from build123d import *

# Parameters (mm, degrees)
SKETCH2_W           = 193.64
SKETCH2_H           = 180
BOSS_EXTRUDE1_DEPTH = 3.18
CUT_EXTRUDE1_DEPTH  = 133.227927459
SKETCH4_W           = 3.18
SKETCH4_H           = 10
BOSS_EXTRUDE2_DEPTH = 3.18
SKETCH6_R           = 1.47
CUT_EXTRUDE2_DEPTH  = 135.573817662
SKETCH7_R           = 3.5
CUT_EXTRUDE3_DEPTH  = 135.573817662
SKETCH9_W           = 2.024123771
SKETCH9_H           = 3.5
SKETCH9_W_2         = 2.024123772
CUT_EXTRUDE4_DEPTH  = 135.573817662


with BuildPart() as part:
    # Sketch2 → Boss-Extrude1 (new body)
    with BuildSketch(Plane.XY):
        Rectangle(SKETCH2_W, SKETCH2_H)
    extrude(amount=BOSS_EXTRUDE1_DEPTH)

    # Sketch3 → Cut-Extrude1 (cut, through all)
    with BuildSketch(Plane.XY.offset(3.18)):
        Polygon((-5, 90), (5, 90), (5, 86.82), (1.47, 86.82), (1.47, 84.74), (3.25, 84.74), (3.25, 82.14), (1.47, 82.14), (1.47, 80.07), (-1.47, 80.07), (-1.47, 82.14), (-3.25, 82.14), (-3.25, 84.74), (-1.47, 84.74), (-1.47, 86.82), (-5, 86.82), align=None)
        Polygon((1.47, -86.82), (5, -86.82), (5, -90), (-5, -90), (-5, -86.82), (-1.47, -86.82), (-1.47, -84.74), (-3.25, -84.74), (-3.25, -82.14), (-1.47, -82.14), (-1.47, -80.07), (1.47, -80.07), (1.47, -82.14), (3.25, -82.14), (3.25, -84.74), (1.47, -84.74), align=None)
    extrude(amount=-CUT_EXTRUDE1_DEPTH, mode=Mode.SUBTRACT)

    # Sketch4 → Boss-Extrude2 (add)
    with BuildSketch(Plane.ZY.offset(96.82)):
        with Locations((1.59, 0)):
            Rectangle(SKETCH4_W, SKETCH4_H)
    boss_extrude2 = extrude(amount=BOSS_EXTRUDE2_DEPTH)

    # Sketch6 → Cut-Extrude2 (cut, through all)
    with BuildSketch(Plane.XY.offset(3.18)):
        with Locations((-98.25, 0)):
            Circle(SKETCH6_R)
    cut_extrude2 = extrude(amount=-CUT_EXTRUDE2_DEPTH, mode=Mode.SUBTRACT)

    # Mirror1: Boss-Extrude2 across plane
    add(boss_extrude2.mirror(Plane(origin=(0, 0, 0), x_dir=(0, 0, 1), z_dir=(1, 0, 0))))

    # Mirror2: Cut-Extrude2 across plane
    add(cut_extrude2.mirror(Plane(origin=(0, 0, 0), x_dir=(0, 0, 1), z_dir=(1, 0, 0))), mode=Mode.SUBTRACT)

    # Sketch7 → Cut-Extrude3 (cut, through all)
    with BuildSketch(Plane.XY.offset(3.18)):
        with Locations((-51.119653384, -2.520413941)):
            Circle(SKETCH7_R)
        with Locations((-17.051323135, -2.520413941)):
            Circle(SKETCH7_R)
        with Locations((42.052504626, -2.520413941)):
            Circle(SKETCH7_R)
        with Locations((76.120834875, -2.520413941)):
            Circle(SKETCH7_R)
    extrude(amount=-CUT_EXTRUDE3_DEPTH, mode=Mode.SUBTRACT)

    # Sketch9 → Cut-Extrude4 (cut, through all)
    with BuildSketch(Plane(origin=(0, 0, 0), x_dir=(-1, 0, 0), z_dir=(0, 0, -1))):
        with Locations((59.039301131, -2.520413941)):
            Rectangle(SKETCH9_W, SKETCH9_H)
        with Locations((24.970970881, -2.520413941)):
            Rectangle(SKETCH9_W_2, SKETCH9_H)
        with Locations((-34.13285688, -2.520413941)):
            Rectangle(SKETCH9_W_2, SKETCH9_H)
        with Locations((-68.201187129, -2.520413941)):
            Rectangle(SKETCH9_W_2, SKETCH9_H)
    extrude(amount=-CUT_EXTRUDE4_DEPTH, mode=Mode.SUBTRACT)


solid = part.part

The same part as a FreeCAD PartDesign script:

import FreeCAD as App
import Part
import Sketcher
from FreeCAD import Vector

doc = App.newDocument("Part")
body = doc.addObject("PartDesign::Body", "Body")

sketch1 = body.newObject("Sketcher::SketchObject", "Sketch")
sketch1.AttachmentSupport = (doc.getObject("XY_Plane"), [""])
sketch1.MapMode = "FlatFace"
sketch1.addGeometry([
    Part.LineSegment(Vector(-96.82, 90, 0), Vector(-96.82, -90, 0)),
    Part.LineSegment(Vector(-96.82, -90, 0), Vector(96.82, -90, 0)),
    Part.LineSegment(Vector(96.82, -90, 0), Vector(96.82, 90, 0)),
    Part.LineSegment(Vector(96.82, 90, 0), Vector(-96.82, 90, 0)),
], False)
sketch1.addConstraint([
    Sketcher.Constraint("Coincident", 0, 2, 1, 1),
    Sketcher.Constraint("Coincident", 1, 2, 2, 1),
    Sketcher.Constraint("Coincident", 2, 2, 3, 1),
    Sketcher.Constraint("Coincident", 3, 2, 0, 1),
    Sketcher.Constraint("Vertical", 0),
    Sketcher.Constraint("Horizontal", 1),
    Sketcher.Constraint("Vertical", 2),
    Sketcher.Constraint("Horizontal", 3),
    Sketcher.Constraint("Symmetric", 0, 2, 2, 2, -1, 1),
    Sketcher.Constraint("DistanceY", 0, 2, 0, 1, 180.0),
    Sketcher.Constraint("DistanceX", 1, 1, 1, 2, 193.64),
])
pad1 = body.newObject("PartDesign::Pad", "Pad")
pad1.Profile = sketch1
pad1.Length = 3.18

sketch2 = body.newObject("Sketcher::SketchObject", "Sketch001")
sketch2.AttachmentSupport = (doc.getObject("XY_Plane"), [""])
sketch2.MapMode = "FlatFace"
sketch2.AttachmentOffset = App.Placement(Vector(0, 0, 3.18), App.Rotation())
sketch2.addGeometry([
    Part.LineSegment(Vector(5, 90, 0), Vector(-5, 90, 0)),
    Part.LineSegment(Vector(-5, 90, 0), Vector(-5, 86.82, 0)),
    Part.LineSegment(Vector(-5, 86.82, 0), Vector(-1.47, 86.82, 0)),
    Part.LineSegment(Vector(-1.47, 86.82, 0), Vector(-1.47, 84.74, 0)),
    Part.LineSegment(Vector(-1.47, 84.74, 0), Vector(-3.25, 84.74, 0)),
    Part.LineSegment(Vector(-3.25, 84.74, 0), Vector(-3.25, 82.14, 0)),
    Part.LineSegment(Vector(-3.25, 82.14, 0), Vector(-1.47, 82.14, 0)),
    Part.LineSegment(Vector(-1.47, 82.14, 0), Vector(-1.47, 80.07, 0)),
    Part.LineSegment(Vector(-1.47, 80.07, 0), Vector(1.47, 80.07, 0)),
    Part.LineSegment(Vector(1.47, 80.07, 0), Vector(1.47, 82.14, 0)),
    Part.LineSegment(Vector(1.47, 82.14, 0), Vector(3.25, 82.14, 0)),
    Part.LineSegment(Vector(3.25, 82.14, 0), Vector(3.25, 84.74, 0)),
    Part.LineSegment(Vector(3.25, 84.74, 0), Vector(1.47, 84.74, 0)),
    Part.LineSegment(Vector(1.47, 84.74, 0), Vector(1.47, 86.82, 0)),
    Part.LineSegment(Vector(1.47, 86.82, 0), Vector(5, 86.82, 0)),
    Part.LineSegment(Vector(5, 86.82, 0), Vector(5, 90, 0)),
    Part.LineSegment(Vector(5, -86.82, 0), Vector(1.47, -86.82, 0)),
    Part.LineSegment(Vector(1.47, -86.82, 0), Vector(1.47, -84.74, 0)),
    Part.LineSegment(Vector(1.47, -84.74, 0), Vector(3.25, -84.74, 0)),
    Part.LineSegment(Vector(3.25, -84.74, 0), Vector(3.25, -82.14, 0)),
    Part.LineSegment(Vector(3.25, -82.14, 0), Vector(1.47, -82.14, 0)),
    Part.LineSegment(Vector(1.47, -82.14, 0), Vector(1.47, -80.07, 0)),
    Part.LineSegment(Vector(1.47, -80.07, 0), Vector(-1.47, -80.07, 0)),
    Part.LineSegment(Vector(-1.47, -80.07, 0), Vector(-1.47, -82.14, 0)),
    Part.LineSegment(Vector(-1.47, -82.14, 0), Vector(-3.25, -82.14, 0)),
    Part.LineSegment(Vector(-3.25, -82.14, 0), Vector(-3.25, -84.74, 0)),
    Part.LineSegment(Vector(-3.25, -84.74, 0), Vector(-1.47, -84.74, 0)),
    Part.LineSegment(Vector(-1.47, -84.74, 0), Vector(-1.47, -86.82, 0)),
    Part.LineSegment(Vector(-1.47, -86.82, 0), Vector(-5, -86.82, 0)),
    Part.LineSegment(Vector(-5, -86.82, 0), Vector(-5, -90, 0)),
    Part.LineSegment(Vector(-5, -90, 0), Vector(5, -90, 0)),
    Part.LineSegment(Vector(5, -90, 0), Vector(5, -86.82, 0)),
], False)
sketch2.addConstraint([
    Sketcher.Constraint("Coincident", 0, 2, 1, 1),
    Sketcher.Constraint("Coincident", 1, 2, 2, 1),
    Sketcher.Constraint("Coincident", 2, 2, 3, 1),
    Sketcher.Constraint("Coincident", 3, 2, 4, 1),
    Sketcher.Constraint("Coincident", 4, 2, 5, 1),
    Sketcher.Constraint("Coincident", 5, 2, 6, 1),
    Sketcher.Constraint("Coincident", 6, 2, 7, 1),
    Sketcher.Constraint("Coincident", 7, 2, 8, 1),
    Sketcher.Constraint("Coincident", 8, 2, 9, 1),
    Sketcher.Constraint("Coincident", 9, 2, 10, 1),
    Sketcher.Constraint("Coincident", 10, 2, 11, 1),
    Sketcher.Constraint("Coincident", 11, 2, 12, 1),
    Sketcher.Constraint("Coincident", 12, 2, 13, 1),
    Sketcher.Constraint("Coincident", 13, 2, 14, 1),
    Sketcher.Constraint("Coincident", 14, 2, 15, 1),
    Sketcher.Constraint("Coincident", 15, 2, 0, 1),
    Sketcher.Constraint("Coincident", 16, 2, 17, 1),
    Sketcher.Constraint("Coincident", 17, 2, 18, 1),
    Sketcher.Constraint("Coincident", 18, 2, 19, 1),
    Sketcher.Constraint("Coincident", 19, 2, 20, 1),
    Sketcher.Constraint("Coincident", 20, 2, 21, 1),
    Sketcher.Constraint("Coincident", 21, 2, 22, 1),
    Sketcher.Constraint("Coincident", 22, 2, 23, 1),
    Sketcher.Constraint("Coincident", 23, 2, 24, 1),
    Sketcher.Constraint("Coincident", 24, 2, 25, 1),
    Sketcher.Constraint("Coincident", 25, 2, 26, 1),
    Sketcher.Constraint("Coincident", 26, 2, 27, 1),
    Sketcher.Constraint("Coincident", 27, 2, 28, 1),
    Sketcher.Constraint("Coincident", 28, 2, 29, 1),
    Sketcher.Constraint("Coincident", 29, 2, 30, 1),
    Sketcher.Constraint("Coincident", 30, 2, 31, 1),
    Sketcher.Constraint("Coincident", 31, 2, 16, 1),
    Sketcher.Constraint("Horizontal", 0),
    Sketcher.Constraint("Vertical", 1),
    Sketcher.Constraint("Horizontal", 2),
    Sketcher.Constraint("Vertical", 3),
    Sketcher.Constraint("Horizontal", 4),
    Sketcher.Constraint("Vertical", 5),
    Sketcher.Constraint("Horizontal", 6),
    Sketcher.Constraint("Vertical", 7),
    Sketcher.Constraint("Horizontal", 8),
    Sketcher.Constraint("Vertical", 9),
    Sketcher.Constraint("Horizontal", 10),
    Sketcher.Constraint("Vertical", 11),
    Sketcher.Constraint("Horizontal", 12),
    Sketcher.Constraint("Vertical", 13),
    Sketcher.Constraint("Horizontal", 14),
    Sketcher.Constraint("Vertical", 15),
    Sketcher.Constraint("Horizontal", 16),
    Sketcher.Constraint("Vertical", 17),
    Sketcher.Constraint("Horizontal", 18),
    Sketcher.Constraint("Vertical", 19),
    Sketcher.Constraint("Horizontal", 20),
    Sketcher.Constraint("Vertical", 21),
    Sketcher.Constraint("Horizontal", 22),
    Sketcher.Constraint("Vertical", 23),
    Sketcher.Constraint("Horizontal", 24),
    Sketcher.Constraint("Vertical", 25),
    Sketcher.Constraint("Horizontal", 26),
    Sketcher.Constraint("Vertical", 27),
    Sketcher.Constraint("Horizontal", 28),
    Sketcher.Constraint("Vertical", 29),
    Sketcher.Constraint("Horizontal", 30),
    Sketcher.Constraint("Vertical", 31),
    Sketcher.Constraint("Symmetric", 2, 2, 16, 2, -1, 1),
    Sketcher.Constraint("Symmetric", 4, 2, 18, 2, -1, 1),
    Sketcher.Constraint("Symmetric", 6, 2, 20, 2, -1, 1),
    Sketcher.Constraint("Symmetric", 8, 2, 22, 2, -1, 1),
    Sketcher.Constraint("Symmetric", 10, 2, 24, 2, -1, 1),
    Sketcher.Constraint("Symmetric", 12, 2, 26, 2, -1, 1),
    Sketcher.Constraint("Symmetric", 14, 2, 28, 2, -1, 1),
    Sketcher.Constraint("Symmetric", 0, 2, 30, 2, -1, 1),
    Sketcher.Constraint("Symmetric", 6, 2, 9, 2, -2),
    Sketcher.Constraint("Symmetric", 4, 2, 11, 2, -2),
    Sketcher.Constraint("Symmetric", 2, 2, 13, 2, -2),
    Sketcher.Constraint("Vertical", 3, 2, 6, 2),
    Sketcher.Constraint("Vertical", 1, 2, 28, 2),
    Sketcher.Constraint("DistanceX", 0, 2, 0, 1, 10.0),
    Sketcher.Constraint("DistanceY", 5, 2, 5, 1, 2.6),
    Sketcher.Constraint("DistanceY", -1, 1, 0, 2, 90.0),
    Sketcher.Constraint("DistanceX", 2, 1, 2, 2, 3.53),
    Sketcher.Constraint("DistanceX", 4, 2, 4, 1, 1.78),
    Sketcher.Constraint("DistanceY", 1, 2, 1, 1, 3.18),
    Sketcher.Constraint("DistanceY", 3, 2, 3, 1, 2.08),
    Sketcher.Constraint("DistanceY", 7, 2, 7, 1, 2.07),
])
pocket1 = body.newObject("PartDesign::Pocket", "Pocket")
pocket1.Profile = sketch2
pocket1.Type = "ThroughAll"

sketch3 = body.newObject("Sketcher::SketchObject", "Sketch002")
sketch3.AttachmentSupport = (doc.getObject("YZ_Plane"), [""])
sketch3.MapMode = "FlatFace"
sketch3.AttachmentOffset = App.Placement(Vector(0, 0, -96.82), App.Rotation())
sketch3.addGeometry([
    Part.LineSegment(Vector(5, 0, 0), Vector(-5, 0, 0)),
    Part.LineSegment(Vector(-5, 0, 0), Vector(-5, 3.18, 0)),
    Part.LineSegment(Vector(-5, 3.18, 0), Vector(5, 3.18, 0)),
    Part.LineSegment(Vector(5, 3.18, 0), Vector(5, 0, 0)),
], False)
sketch3.addConstraint([
    Sketcher.Constraint("Coincident", 0, 2, 1, 1),
    Sketcher.Constraint("Coincident", 1, 2, 2, 1),
    Sketcher.Constraint("Coincident", 2, 2, 3, 1),
    Sketcher.Constraint("Coincident", 3, 2, 0, 1),
    Sketcher.Constraint("Horizontal", 0),
    Sketcher.Constraint("Vertical", 1),
    Sketcher.Constraint("Horizontal", 2),
    Sketcher.Constraint("Vertical", 3),
    Sketcher.Constraint("Symmetric", 0, 2, 3, 2, -1, 1),
    Sketcher.Constraint("DistanceX", 0, 2, 0, 1, 10.0),
    Sketcher.Constraint("DistanceY", 1, 1, 1, 2, 3.18),
])
pad2 = body.newObject("PartDesign::Pad", "Pad001")
pad2.Profile = sketch3
pad2.Length = 3.18
pad2.Reversed = True

sketch4 = body.newObject("Sketcher::SketchObject", "Sketch003")
sketch4.AttachmentSupport = (doc.getObject("XY_Plane"), [""])
sketch4.MapMode = "FlatFace"
sketch4.AttachmentOffset = App.Placement(Vector(0, 0, 3.18), App.Rotation())
sketch4.addGeometry(Part.Circle(Vector(-98.25, 0, 0), Vector(0, 0, 1), 1.47), False)
sketch4.addConstraint([
    Sketcher.Constraint("PointOnObject", 0, 3, -1),
    Sketcher.Constraint("Diameter", 0, 2.94),
    Sketcher.Constraint("DistanceX", 0, 3, -1, 1, 98.25),
])
pocket2 = body.newObject("PartDesign::Pocket", "Pocket001")
pocket2.Profile = sketch4
pocket2.Type = "ThroughAll"
doc.recompute()

mirrored = body.newObject("PartDesign::Mirrored", "Mirrored")
mirrored.Originals = [pad2]
mirrored.MirrorPlane = (doc.getObject("YZ_Plane"), [""])
body.Tip = mirrored
doc.recompute()

mirrored2 = body.newObject("PartDesign::Mirrored", "Mirrored001")
mirrored2.Originals = [pocket2]
mirrored2.MirrorPlane = (doc.getObject("YZ_Plane"), [""])
body.Tip = mirrored2

sketch5 = body.newObject("Sketcher::SketchObject", "Sketch004")
sketch5.AttachmentSupport = (doc.getObject("XY_Plane"), [""])
sketch5.MapMode = "FlatFace"
sketch5.AttachmentOffset = App.Placement(Vector(0, 0, 3.18), App.Rotation())
sketch5.addGeometry([
    Part.Circle(Vector(-51.119653, -2.520414, 0), Vector(0, 0, 1), 3.5),
    Part.Circle(Vector(-17.051323, -2.520414, 0), Vector(0, 0, 1), 3.5),
    Part.Circle(Vector(42.052505, -2.520414, 0), Vector(0, 0, 1), 3.5),
    Part.Circle(Vector(76.120835, -2.520414, 0), Vector(0, 0, 1), 3.5),
], False)
sketch5.addConstraint([
    Sketcher.Constraint("Equal", 0, 1),
    Sketcher.Constraint("Equal", 1, 2),
    Sketcher.Constraint("Equal", 2, 3),
    Sketcher.Constraint("Horizontal", 0, 3, 1, 3),
    Sketcher.Constraint("Horizontal", 1, 3, 2, 3),
    Sketcher.Constraint("Horizontal", 2, 3, 3, 3),
    Sketcher.Constraint("Diameter", 0, 7.0),
    Sketcher.Constraint("DistanceX", 0, 3, 1, 3, 34.06833),
    Sketcher.Constraint("DistanceX", 0, 3, 2, 3, 93.172158),
    Sketcher.Constraint("DistanceX", 2, 3, 3, 3, 34.06833),
    Sketcher.Constraint("DistanceX", 0, 3, -1, 1, 51.119653),
    Sketcher.Constraint("DistanceY", 0, 3, -1, 1, 2.520414),
])
pocket3 = body.newObject("PartDesign::Pocket", "Pocket002")
pocket3.Profile = sketch5
pocket3.Type = "ThroughAll"

sketch6 = body.newObject("Sketcher::SketchObject", "Sketch005")
sketch6.AttachmentSupport = (doc.getObject("XY_Plane"), [""])
sketch6.MapMode = "FlatFace"
sketch6.addGeometry([
    Part.LineSegment(Vector(-58.027239, -0.770414, 0), Vector(-58.027239, -4.270414, 0)),
    Part.LineSegment(Vector(-58.027239, -4.270414, 0), Vector(-60.051363, -4.270414, 0)),
    Part.LineSegment(Vector(-60.051363, -4.270414, 0), Vector(-60.051363, -0.770414, 0)),
    Part.LineSegment(Vector(-60.051363, -0.770414, 0), Vector(-58.027239, -0.770414, 0)),
    Part.LineSegment(Vector(-23.958909, -0.770414, 0), Vector(-23.958909, -4.270414, 0)),
    Part.LineSegment(Vector(-23.958909, -4.270414, 0), Vector(-25.983033, -4.270414, 0)),
    Part.LineSegment(Vector(-25.983033, -4.270414, 0), Vector(-25.983033, -0.770414, 0)),
    Part.LineSegment(Vector(-25.983033, -0.770414, 0), Vector(-23.958909, -0.770414, 0)),
    Part.LineSegment(Vector(35.144919, -0.770414, 0), Vector(35.144919, -4.270414, 0)),
    Part.LineSegment(Vector(35.144919, -4.270414, 0), Vector(33.120795, -4.270414, 0)),
    Part.LineSegment(Vector(33.120795, -4.270414, 0), Vector(33.120795, -0.770414, 0)),
    Part.LineSegment(Vector(33.120795, -0.770414, 0), Vector(35.144919, -0.770414, 0)),
    Part.LineSegment(Vector(69.213249, -0.770414, 0), Vector(69.213249, -4.270414, 0)),
    Part.LineSegment(Vector(69.213249, -4.270414, 0), Vector(67.189125, -4.270414, 0)),
    Part.LineSegment(Vector(67.189125, -4.270414, 0), Vector(67.189125, -0.770414, 0)),
    Part.LineSegment(Vector(67.189125, -0.770414, 0), Vector(69.213249, -0.770414, 0)),
], False)
sketch6.addConstraint([
    Sketcher.Constraint("Coincident", 0, 2, 1, 1),
    Sketcher.Constraint("Coincident", 1, 2, 2, 1),
    Sketcher.Constraint("Coincident", 2, 2, 3, 1),
    Sketcher.Constraint("Coincident", 3, 2, 0, 1),
    Sketcher.Constraint("Coincident", 4, 2, 5, 1),
    Sketcher.Constraint("Coincident", 5, 2, 6, 1),
    Sketcher.Constraint("Coincident", 6, 2, 7, 1),
    Sketcher.Constraint("Coincident", 7, 2, 4, 1),
    Sketcher.Constraint("Coincident", 8, 2, 9, 1),
    Sketcher.Constraint("Coincident", 9, 2, 10, 1),
    Sketcher.Constraint("Coincident", 10, 2, 11, 1),
    Sketcher.Constraint("Coincident", 11, 2, 8, 1),
    Sketcher.Constraint("Coincident", 12, 2, 13, 1),
    Sketcher.Constraint("Coincident", 13, 2, 14, 1),
    Sketcher.Constraint("Coincident", 14, 2, 15, 1),
    Sketcher.Constraint("Coincident", 15, 2, 12, 1),
    Sketcher.Constraint("Vertical", 0),
    Sketcher.Constraint("Horizontal", 1),
    Sketcher.Constraint("Vertical", 2),
    Sketcher.Constraint("Horizontal", 3),
    Sketcher.Constraint("Vertical", 4),
    Sketcher.Constraint("Horizontal", 5),
    Sketcher.Constraint("Vertical", 6),
    Sketcher.Constraint("Horizontal", 7),
    Sketcher.Constraint("Vertical", 8),
    Sketcher.Constraint("Horizontal", 9),
    Sketcher.Constraint("Vertical", 10),
    Sketcher.Constraint("Horizontal", 11),
    Sketcher.Constraint("Vertical", 12),
    Sketcher.Constraint("Horizontal", 13),
    Sketcher.Constraint("Vertical", 14),
    Sketcher.Constraint("Horizontal", 15),
    Sketcher.Constraint("Horizontal", 1, 2, 4, 2),
    Sketcher.Constraint("Horizontal", 3, 2, 6, 2),
    Sketcher.Constraint("Horizontal", 5, 2, 8, 2),
    Sketcher.Constraint("Horizontal", 7, 2, 10, 2),
    Sketcher.Constraint("Horizontal", 9, 2, 12, 2),
    Sketcher.Constraint("Horizontal", 11, 2, 14, 2),
    Sketcher.Constraint("Equal", 3, 5),
    Sketcher.Constraint("Equal", 7, 9),
    Sketcher.Constraint("Equal", 11, 13),
    Sketcher.Constraint("DistanceY", 0, 2, 0, 1, 3.5),
    Sketcher.Constraint("DistanceX", 1, 2, 1, 1, 2.024124),
    Sketcher.Constraint("DistanceX", 0, 2, -1, 1, 58.027239),
    Sketcher.Constraint("DistanceX", 4, 2, -1, 1, 23.958909),
    Sketcher.Constraint("DistanceX", -1, 1, 8, 2, 35.144919),
    Sketcher.Constraint("DistanceX", -1, 1, 12, 2, 69.213249),
    Sketcher.Constraint("DistanceY", 0, 2, -1, 1, 4.270414),
])
pocket4 = body.newObject("PartDesign::Pocket", "Pocket003")
pocket4.Profile = sketch6
pocket4.Type = "ThroughAll"
pocket4.Reversed = True

doc.recompute()
